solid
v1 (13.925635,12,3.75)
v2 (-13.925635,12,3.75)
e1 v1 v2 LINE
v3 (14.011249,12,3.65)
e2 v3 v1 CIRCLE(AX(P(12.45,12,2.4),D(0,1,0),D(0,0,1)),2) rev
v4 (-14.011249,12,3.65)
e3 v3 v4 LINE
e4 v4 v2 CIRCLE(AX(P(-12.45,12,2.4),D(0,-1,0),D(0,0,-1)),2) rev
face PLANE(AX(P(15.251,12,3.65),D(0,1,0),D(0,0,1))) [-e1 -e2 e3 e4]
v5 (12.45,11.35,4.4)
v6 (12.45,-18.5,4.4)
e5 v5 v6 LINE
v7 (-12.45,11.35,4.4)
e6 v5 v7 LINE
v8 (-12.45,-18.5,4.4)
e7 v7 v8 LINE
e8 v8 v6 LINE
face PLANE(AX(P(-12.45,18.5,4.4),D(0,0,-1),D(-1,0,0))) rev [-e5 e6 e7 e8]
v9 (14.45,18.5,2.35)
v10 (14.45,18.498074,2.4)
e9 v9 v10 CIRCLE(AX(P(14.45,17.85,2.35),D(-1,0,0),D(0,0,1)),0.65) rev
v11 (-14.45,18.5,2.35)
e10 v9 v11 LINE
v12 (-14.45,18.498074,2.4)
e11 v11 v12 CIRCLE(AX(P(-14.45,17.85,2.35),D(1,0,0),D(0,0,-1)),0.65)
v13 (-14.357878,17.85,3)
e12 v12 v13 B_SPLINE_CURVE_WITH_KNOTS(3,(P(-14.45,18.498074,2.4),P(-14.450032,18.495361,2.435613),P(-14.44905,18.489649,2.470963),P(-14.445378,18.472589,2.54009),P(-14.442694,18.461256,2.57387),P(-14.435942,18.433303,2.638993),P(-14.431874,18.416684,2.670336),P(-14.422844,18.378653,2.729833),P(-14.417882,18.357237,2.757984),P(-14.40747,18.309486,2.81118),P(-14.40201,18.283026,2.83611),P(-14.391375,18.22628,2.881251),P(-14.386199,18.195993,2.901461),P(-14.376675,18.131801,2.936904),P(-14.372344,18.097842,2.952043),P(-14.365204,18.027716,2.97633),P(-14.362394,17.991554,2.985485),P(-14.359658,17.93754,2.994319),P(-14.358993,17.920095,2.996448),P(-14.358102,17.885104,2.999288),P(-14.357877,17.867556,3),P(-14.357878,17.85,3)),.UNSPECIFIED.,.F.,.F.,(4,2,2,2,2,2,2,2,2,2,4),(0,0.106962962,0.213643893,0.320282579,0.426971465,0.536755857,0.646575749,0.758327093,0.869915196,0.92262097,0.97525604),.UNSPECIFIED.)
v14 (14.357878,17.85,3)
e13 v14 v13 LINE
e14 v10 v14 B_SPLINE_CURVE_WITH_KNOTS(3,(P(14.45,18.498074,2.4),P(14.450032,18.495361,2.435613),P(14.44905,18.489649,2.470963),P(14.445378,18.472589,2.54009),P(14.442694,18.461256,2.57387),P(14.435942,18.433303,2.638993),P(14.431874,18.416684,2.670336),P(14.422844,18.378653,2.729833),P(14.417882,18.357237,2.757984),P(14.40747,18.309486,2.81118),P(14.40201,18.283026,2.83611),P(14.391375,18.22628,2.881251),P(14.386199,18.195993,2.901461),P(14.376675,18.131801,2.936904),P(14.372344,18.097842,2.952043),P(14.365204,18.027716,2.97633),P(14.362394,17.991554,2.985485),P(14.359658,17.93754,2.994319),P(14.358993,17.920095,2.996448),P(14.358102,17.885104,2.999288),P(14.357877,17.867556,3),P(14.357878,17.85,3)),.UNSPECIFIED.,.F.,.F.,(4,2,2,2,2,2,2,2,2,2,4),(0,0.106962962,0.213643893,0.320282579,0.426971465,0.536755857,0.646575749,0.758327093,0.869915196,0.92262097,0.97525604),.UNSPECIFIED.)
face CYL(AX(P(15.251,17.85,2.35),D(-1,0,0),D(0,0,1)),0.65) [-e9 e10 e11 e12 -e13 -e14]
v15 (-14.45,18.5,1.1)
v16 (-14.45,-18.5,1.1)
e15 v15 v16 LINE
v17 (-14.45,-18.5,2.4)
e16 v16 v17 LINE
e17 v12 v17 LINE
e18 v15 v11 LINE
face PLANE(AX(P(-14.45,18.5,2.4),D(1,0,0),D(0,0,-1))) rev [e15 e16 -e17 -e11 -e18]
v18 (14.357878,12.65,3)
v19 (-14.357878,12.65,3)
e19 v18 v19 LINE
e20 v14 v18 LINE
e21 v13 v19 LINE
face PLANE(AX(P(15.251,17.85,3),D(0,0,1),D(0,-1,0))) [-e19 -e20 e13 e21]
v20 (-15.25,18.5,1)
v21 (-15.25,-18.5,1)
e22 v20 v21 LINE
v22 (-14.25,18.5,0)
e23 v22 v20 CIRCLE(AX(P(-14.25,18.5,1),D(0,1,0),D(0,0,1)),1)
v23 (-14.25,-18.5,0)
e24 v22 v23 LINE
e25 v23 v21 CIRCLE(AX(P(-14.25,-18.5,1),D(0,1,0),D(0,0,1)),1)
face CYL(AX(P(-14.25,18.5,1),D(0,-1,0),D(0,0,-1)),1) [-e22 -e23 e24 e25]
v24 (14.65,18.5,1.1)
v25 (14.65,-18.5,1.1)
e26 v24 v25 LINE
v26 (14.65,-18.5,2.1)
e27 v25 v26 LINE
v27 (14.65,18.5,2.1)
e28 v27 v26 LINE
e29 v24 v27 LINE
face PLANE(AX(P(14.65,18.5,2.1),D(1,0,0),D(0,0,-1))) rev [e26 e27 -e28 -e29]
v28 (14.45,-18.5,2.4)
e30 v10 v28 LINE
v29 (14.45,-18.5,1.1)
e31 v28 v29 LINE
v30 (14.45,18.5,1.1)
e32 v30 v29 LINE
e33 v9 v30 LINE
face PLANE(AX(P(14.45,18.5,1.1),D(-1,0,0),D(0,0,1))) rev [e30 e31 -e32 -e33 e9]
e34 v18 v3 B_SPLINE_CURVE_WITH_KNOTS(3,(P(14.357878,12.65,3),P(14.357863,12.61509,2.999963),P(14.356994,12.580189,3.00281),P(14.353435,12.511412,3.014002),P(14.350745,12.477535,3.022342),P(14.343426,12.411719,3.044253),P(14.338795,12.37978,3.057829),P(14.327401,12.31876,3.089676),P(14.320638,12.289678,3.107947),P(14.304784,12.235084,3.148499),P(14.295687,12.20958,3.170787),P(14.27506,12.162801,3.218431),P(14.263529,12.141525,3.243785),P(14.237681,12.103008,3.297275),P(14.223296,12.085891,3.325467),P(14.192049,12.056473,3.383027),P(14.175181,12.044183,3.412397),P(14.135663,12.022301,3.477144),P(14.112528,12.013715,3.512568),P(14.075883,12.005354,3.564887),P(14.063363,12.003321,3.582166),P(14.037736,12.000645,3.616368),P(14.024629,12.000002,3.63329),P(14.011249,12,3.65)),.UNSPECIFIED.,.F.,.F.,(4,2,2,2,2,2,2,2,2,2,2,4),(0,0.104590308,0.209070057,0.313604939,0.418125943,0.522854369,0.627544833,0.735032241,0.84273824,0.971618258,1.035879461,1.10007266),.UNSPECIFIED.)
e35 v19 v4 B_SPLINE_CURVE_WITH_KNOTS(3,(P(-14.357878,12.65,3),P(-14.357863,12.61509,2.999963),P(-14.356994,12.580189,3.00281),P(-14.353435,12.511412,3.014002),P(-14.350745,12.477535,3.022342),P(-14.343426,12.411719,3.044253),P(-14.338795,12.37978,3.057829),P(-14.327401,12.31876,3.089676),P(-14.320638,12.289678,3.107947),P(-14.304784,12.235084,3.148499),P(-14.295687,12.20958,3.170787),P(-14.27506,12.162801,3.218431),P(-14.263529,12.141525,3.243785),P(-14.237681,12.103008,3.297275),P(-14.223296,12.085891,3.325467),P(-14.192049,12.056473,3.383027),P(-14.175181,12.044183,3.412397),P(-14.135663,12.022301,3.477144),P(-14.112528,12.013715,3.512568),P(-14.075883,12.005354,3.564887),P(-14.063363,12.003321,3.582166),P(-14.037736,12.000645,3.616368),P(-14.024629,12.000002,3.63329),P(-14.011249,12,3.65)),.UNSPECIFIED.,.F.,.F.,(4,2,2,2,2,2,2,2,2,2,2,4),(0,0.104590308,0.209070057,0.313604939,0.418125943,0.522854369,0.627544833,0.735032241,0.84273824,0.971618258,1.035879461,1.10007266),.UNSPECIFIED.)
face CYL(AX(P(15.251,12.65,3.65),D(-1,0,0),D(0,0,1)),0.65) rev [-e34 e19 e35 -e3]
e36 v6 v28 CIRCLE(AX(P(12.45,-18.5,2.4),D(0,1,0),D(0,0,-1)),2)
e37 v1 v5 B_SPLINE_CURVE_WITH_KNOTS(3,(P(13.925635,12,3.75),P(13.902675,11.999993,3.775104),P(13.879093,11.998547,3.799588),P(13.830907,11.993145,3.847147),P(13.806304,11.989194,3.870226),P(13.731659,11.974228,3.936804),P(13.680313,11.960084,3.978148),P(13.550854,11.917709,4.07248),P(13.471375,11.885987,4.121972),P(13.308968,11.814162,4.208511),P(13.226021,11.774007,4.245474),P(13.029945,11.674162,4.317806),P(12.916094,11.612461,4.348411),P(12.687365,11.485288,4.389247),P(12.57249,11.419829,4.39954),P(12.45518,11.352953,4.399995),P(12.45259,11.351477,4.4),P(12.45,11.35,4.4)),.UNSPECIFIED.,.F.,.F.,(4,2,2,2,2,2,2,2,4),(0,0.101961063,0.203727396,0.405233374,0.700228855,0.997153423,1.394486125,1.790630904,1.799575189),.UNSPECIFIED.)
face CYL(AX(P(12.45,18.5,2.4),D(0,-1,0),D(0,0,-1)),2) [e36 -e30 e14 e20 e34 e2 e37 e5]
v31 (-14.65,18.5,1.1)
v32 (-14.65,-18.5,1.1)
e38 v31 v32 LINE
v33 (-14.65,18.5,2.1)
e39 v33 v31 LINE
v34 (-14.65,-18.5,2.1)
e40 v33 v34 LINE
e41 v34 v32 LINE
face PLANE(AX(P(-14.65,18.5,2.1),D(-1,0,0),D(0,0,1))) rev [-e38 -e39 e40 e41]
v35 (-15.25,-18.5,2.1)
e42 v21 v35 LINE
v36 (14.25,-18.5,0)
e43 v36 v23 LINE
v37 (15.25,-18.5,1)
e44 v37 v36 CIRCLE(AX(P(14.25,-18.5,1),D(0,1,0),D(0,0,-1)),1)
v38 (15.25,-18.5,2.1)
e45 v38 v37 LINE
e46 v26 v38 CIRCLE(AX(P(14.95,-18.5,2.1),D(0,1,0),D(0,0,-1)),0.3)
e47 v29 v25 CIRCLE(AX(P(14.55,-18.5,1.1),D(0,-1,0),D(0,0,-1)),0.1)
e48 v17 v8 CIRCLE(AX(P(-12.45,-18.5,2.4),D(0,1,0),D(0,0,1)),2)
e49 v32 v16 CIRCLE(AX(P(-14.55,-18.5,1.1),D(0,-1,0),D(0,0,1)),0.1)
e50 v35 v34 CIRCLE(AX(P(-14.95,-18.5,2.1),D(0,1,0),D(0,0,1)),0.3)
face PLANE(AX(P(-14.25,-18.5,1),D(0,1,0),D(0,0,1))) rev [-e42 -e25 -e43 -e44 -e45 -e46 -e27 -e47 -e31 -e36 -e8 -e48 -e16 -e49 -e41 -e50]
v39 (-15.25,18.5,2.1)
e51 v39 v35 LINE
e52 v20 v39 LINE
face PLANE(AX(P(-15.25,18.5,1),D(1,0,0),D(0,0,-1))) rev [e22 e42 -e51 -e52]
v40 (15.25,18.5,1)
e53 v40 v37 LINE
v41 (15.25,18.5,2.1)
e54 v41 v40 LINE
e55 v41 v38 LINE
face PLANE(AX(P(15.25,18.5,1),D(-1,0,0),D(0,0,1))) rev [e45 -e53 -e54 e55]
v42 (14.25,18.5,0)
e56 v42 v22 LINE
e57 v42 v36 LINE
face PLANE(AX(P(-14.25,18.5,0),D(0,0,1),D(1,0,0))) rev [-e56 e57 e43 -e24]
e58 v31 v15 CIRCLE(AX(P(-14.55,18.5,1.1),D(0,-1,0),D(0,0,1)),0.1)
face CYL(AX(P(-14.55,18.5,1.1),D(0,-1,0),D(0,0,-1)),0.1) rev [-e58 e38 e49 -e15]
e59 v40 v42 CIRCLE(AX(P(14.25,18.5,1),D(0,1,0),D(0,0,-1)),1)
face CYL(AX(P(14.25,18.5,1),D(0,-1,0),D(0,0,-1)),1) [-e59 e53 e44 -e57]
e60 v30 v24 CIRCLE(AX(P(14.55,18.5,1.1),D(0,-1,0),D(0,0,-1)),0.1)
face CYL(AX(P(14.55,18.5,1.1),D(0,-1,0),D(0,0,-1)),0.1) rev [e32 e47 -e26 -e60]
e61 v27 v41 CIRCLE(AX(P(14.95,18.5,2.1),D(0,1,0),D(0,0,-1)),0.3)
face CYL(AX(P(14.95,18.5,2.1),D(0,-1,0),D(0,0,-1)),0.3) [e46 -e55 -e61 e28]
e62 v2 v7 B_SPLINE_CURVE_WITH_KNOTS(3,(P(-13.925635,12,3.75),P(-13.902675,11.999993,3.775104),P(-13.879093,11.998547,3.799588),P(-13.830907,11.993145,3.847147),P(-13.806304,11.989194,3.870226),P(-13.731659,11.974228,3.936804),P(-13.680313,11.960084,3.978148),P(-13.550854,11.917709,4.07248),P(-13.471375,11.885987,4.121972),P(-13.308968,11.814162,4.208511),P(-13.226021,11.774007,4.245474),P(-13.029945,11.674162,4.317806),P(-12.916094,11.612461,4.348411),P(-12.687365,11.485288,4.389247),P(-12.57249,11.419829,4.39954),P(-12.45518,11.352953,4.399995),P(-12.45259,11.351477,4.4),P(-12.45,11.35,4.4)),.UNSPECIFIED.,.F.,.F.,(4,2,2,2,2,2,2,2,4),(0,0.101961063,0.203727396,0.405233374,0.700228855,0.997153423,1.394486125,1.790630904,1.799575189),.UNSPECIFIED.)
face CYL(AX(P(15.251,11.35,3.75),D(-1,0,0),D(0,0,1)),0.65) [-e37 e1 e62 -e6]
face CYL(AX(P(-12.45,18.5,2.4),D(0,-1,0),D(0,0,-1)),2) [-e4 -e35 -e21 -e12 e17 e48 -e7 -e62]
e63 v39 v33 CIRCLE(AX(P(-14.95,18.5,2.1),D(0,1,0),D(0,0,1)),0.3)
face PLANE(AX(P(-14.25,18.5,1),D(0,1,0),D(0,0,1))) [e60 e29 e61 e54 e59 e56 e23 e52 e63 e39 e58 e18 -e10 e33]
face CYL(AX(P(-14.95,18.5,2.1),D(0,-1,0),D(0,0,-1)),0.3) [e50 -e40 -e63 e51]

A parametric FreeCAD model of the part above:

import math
import FreeCAD as App
import Part
import Sketcher

doc = App.newDocument("Part")
params = doc.addObject("Spreadsheet::Sheet", "Params")
for row, (alias, value) in enumerate([
    ("sketch1_radius", "1 mm"),
    ("sketch1_radius2", "2 mm"),
    ("sketch1_radius3", "0.3 mm"),
    ("sketch1_radius4", "0.1 mm"),
    ("sketch1_height", "1 mm"),
    ("pad1_length", "37 mm"),
    ("sketch2_radius", "0.65 mm"),
    ("sketch2_width", "5.2 mm"),
    ("sketch2_height", "0.1 mm"),
    ("sketch3_radius", "0.65 mm"),
    ("sketch3_width", "5.2 mm"),
    ("sketch3_height", "0.1 mm"),
], start=1):
    params.set(f"A{row}", alias)
    params.set(f"B{row}", "=" + value)
    params.setAlias(f"B{row}", alias)

body = doc.addObject("PartDesign::Body", "Body")

# Sketch on XZ plane
sketch1 = body.newObject("Sketcher::SketchObject", "Sketch")
sketch1.AttachmentSupport = (doc.getObject("XZ_Plane"), [""])
sketch1.MapMode = "FlatFace"
sketch1.addGeometry([
    Part.LineSegment(App.Vector(14.25, 0, 0), App.Vector(-14.25, 0, 0)),  # 0
    Part.ArcOfCircle(Part.Circle(App.Vector(-14.25, 1, 0), App.Vector(0, 0, 1), 1), math.radians(-180), math.radians(-90)),  # 1
    Part.LineSegment(App.Vector(-15.25, 1, 0), App.Vector(-15.25, 2.1, 0)),  # 2
    Part.ArcOfCircle(Part.Circle(App.Vector(-14.95, 2.1, 0), App.Vector(0, 0, 1), 0.3), math.radians(0), math.radians(180)),  # 3
    Part.LineSegment(App.Vector(-14.65, 2.1, 0), App.Vector(-14.65, 1.1, 0)),  # 4
    Part.ArcOfCircle(Part.Circle(App.Vector(-14.55, 1.1, 0), App.Vector(0, 0, 1), 0.1), math.radians(180), math.radians(360)),  # 5
    Part.LineSegment(App.Vector(-14.45, 1.1, 0), App.Vector(-14.45, 2.4, 0)),  # 6
    Part.ArcOfCircle(Part.Circle(App.Vector(-12.45, 2.4, 0), App.Vector(0, 0, 1), 2), math.radians(90), math.radians(180)),  # 7
    Part.LineSegment(App.Vector(-12.45, 4.4, 0), App.Vector(12.45, 4.4, 0)),  # 8
    Part.ArcOfCircle(Part.Circle(App.Vector(12.45, 2.4, 0), App.Vector(0, 0, 1), 2), math.radians(0), math.radians(90)),  # 9
    Part.LineSegment(App.Vector(14.45, 2.4, 0), App.Vector(14.45, 1.1, 0)),  # 10
    Part.ArcOfCircle(Part.Circle(App.Vector(14.55, 1.1, 0), App.Vector(0, 0, 1), 0.1), math.radians(180), math.radians(360)),  # 11
    Part.LineSegment(App.Vector(14.65, 1.1, 0), App.Vector(14.65, 2.1, 0)),  # 12
    Part.ArcOfCircle(Part.Circle(App.Vector(14.95, 2.1, 0), App.Vector(0, 0, 1), 0.3), math.radians(0), math.radians(180)),  # 13
    Part.LineSegment(App.Vector(15.25, 2.1, 0), App.Vector(15.25, 1, 0)),  # 14
    Part.ArcOfCircle(Part.Circle(App.Vector(14.25, 1, 0), App.Vector(0, 0, 1), 1), math.radians(-90), math.radians(0)),  # 15
], False)
sketch1.addConstraint([
    Sketcher.Constraint("Tangent", 0, 2, 1, 2),
    Sketcher.Constraint("Tangent", 1, 1, 2, 1),
    Sketcher.Constraint("Tangent", 2, 2, 3, 2),
    Sketcher.Constraint("Tangent", 3, 1, 4, 1),
    Sketcher.Constraint("Tangent", 4, 2, 5, 1),
    Sketcher.Constraint("Tangent", 5, 2, 6, 1),
    Sketcher.Constraint("Tangent", 6, 2, 7, 2),
    Sketcher.Constraint("Tangent", 7, 1, 8, 1),
    Sketcher.Constraint("Tangent", 8, 2, 9, 2),
    Sketcher.Constraint("Tangent", 9, 1, 10, 1),
    Sketcher.Constraint("Tangent", 10, 2, 11, 1),
    Sketcher.Constraint("Tangent", 11, 2, 12, 1),
    Sketcher.Constraint("Tangent", 12, 2, 13, 2),
    Sketcher.Constraint("Tangent", 13, 1, 14, 1),
    Sketcher.Constraint("Tangent", 14, 2, 15, 2),
    Sketcher.Constraint("Tangent", 15, 1, 0, 1),
    Sketcher.Constraint("Horizontal", 0),
    Sketcher.Constraint("Vertical", 2),
    Sketcher.Constraint("Vertical", 4),
    Sketcher.Constraint("Vertical", 6),
    Sketcher.Constraint("Horizontal", 8),
    Sketcher.Constraint("Vertical", 10),
    Sketcher.Constraint("Vertical", 12),
    Sketcher.Constraint("Vertical", 14),
    Sketcher.Constraint("Equal", 7, 9),
    Sketcher.Constraint("Equal", 5, 11),
    Sketcher.Constraint("Equal", 3, 13),
    Sketcher.Constraint("Equal", 1, 15),
    Sketcher.Constraint("Symmetric", 0, 2, 15, 1, -1, 1),
    Sketcher.Constraint("Horizontal", 5, 3, 11, 3),
    Sketcher.Constraint("Horizontal", 3, 3, 13, 3),
    Sketcher.Constraint("Radius", 1, 1.0),
    Sketcher.Constraint("Radius", 7, 2.0),
    Sketcher.Constraint("Radius", 3, 0.3),
    Sketcher.Constraint("Radius", 5, 0.1),
    Sketcher.Constraint("DistanceY", 4, 2, 4, 1, 1.0),
    Sketcher.Constraint("DistanceX", 0, 2, 0, 1, 28.5),
    Sketcher.Constraint("DistanceY", 2, 1, 2, 2, 1.1),
    Sketcher.Constraint("DistanceY", 6, 1, 6, 2, 1.3),
])
sketch1.setExpression("Constraints[31]", "Params.sketch1_radius")
sketch1.setExpression("Constraints[32]", "Params.sketch1_radius2")
sketch1.setExpression("Constraints[33]", "Params.sketch1_radius3")
sketch1.setExpression("Constraints[34]", "Params.sketch1_radius4")
sketch1.setExpression("Constraints[35]", "Params.sketch1_height")
pad1 = body.newObject("PartDesign::Pad", "Pad")
pad1.Profile = sketch1
pad1.setExpression("Length", "Params.pad1_length")
pad1.Midplane = True

# Sketch on YZ plane
sketch2 = body.newObject("Sketcher::SketchObject", "Sketch001")
sketch2.AttachmentSupport = (doc.getObject("YZ_Plane"), [""])
sketch2.MapMode = "FlatFace"
sketch2.addGeometry([
    Part.LineSegment(App.Vector(12.65, 3, 0), App.Vector(17.85, 3, 0)),  # 0
    Part.ArcOfCircle(Part.Circle(App.Vector(17.85, 2.35, 0), App.Vector(0, 0, 1), 0.65), math.radians(0), math.radians(90)),  # 1
    Part.LineSegment(App.Vector(18.5, 2.35, 0), App.Vector(18.5, 4.4, 0)),  # 2
    Part.LineSegment(App.Vector(18.5, 4.4, 0), App.Vector(11.35, 4.4, 0)),  # 3
    Part.ArcOfCircle(Part.Circle(App.Vector(11.35, 3.75, 0), App.Vector(0, 0, 1), 0.65), math.radians(0), math.radians(90)),  # 4
    Part.LineSegment(App.Vector(12, 3.75, 0), App.Vector(12, 3.65, 0)),  # 5
    Part.ArcOfCircle(Part.Circle(App.Vector(12.65, 3.65, 0), App.Vector(0, 0, 1), 0.65), math.radians(180), math.radians(270)),  # 6
], False)
sketch2.addConstraint([
    Sketcher.Constraint("Tangent", 0, 2, 1, 2),
    Sketcher.Constraint("Tangent", 1, 1, 2, 1),
    Sketcher.Constraint("Coincident", 2, 2, 3, 1),
    Sketcher.Constraint("Tangent", 3, 2, 4, 2),
    Sketcher.Constraint("Tangent", 4, 1, 5, 1),
    Sketcher.Constraint("Tangent", 5, 2, 6, 1),
    Sketcher.Constraint("Tangent", 6, 2, 0, 1),
    Sketcher.Constraint("Horizontal", 0),
    Sketcher.Constraint("Vertical", 2),
    Sketcher.Constraint("Horizontal", 3),
    Sketcher.Constraint("Vertical", 5),
    Sketcher.Constraint("Equal", 1, 4),
    Sketcher.Constraint("Equal", 4, 6),
    Sketcher.Constraint("Radius", 1, 0.65),
    Sketcher.Constraint("DistanceX", 0, 1, 0, 2, 5.2),
    Sketcher.Constraint("DistanceY", 5, 2, 5, 1, 0.1),
    Sketcher.Constraint("DistanceY", -1, 1, 0, 2, 3.0),
    Sketcher.Constraint("DistanceX", -1, 1, 4, 1, 12.0),
])
sketch2.setExpression("Constraints[13]", "Params.sketch2_radius")
sketch2.setExpression("Constraints[14]", "Params.sketch2_width")
sketch2.setExpression("Constraints[15]", "Params.sketch2_height")
pocket1 = body.newObject("PartDesign::Pocket", "Pocket")
pocket1.Profile = sketch2
pocket1.Type = "UpToFirst"

# Sketch on YZ plane
sketch3 = body.newObject("Sketcher::SketchObject", "Sketch002")
sketch3.AttachmentSupport = (doc.getObject("YZ_Plane"), [""])
sketch3.MapMode = "FlatFace"
sketch3.addGeometry([
    Part.LineSegment(App.Vector(12.65, 3, 0), App.Vector(17.85, 3, 0)),  # 0
    Part.ArcOfCircle(Part.Circle(App.Vector(17.85, 2.35, 0), App.Vector(0, 0, 1), 0.65), math.radians(0), math.radians(90)),  # 1
    Part.LineSegment(App.Vector(18.5, 2.35, 0), App.Vector(18.5, 4.4, 0)),  # 2
    Part.LineSegment(App.Vector(18.5, 4.4, 0), App.Vector(11.35, 4.4, 0)),  # 3
    Part.ArcOfCircle(Part.Circle(App.Vector(11.35, 3.75, 0), App.Vector(0, 0, 1), 0.65), math.radians(0), math.radians(90)),  # 4
    Part.LineSegment(App.Vector(12, 3.75, 0), App.Vector(12, 3.65, 0)),  # 5
    Part.ArcOfCircle(Part.Circle(App.Vector(12.65, 3.65, 0), App.Vector(0, 0, 1), 0.65), math.radians(180), math.radians(270)),  # 6
], False)
sketch3.addConstraint([
    Sketcher.Constraint("Tangent", 0, 2, 1, 2),
    Sketcher.Constraint("Tangent", 1, 1, 2, 1),
    Sketcher.Constraint("Coincident", 2, 2, 3, 1),
    Sketcher.Constraint("Tangent", 3, 2, 4, 2),
    Sketcher.Constraint("Tangent", 4, 1, 5, 1),
    Sketcher.Constraint("Tangent", 5, 2, 6, 1),
    Sketcher.Constraint("Tangent", 6, 2, 0, 1),
    Sketcher.Constraint("Horizontal", 0),
    Sketcher.Constraint("Vertical", 2),
    Sketcher.Constraint("Horizontal", 3),
    Sketcher.Constraint("Vertical", 5),
    Sketcher.Constraint("Equal", 1, 4),
    Sketcher.Constraint("Equal", 4, 6),
    Sketcher.Constraint("Radius", 1, 0.65),
    Sketcher.Constraint("DistanceX", 0, 1, 0, 2, 5.2),
    Sketcher.Constraint("DistanceY", 5, 2, 5, 1, 0.1),
    Sketcher.Constraint("DistanceY", -1, 1, 0, 2, 3.0),
    Sketcher.Constraint("DistanceX", -1, 1, 4, 1, 12.0),
])
sketch3.setExpression("Constraints[13]", "Params.sketch3_radius")
sketch3.setExpression("Constraints[14]", "Params.sketch3_width")
sketch3.setExpression("Constraints[15]", "Params.sketch3_height")
pocket2 = body.newObject("PartDesign::Pocket", "Pocket001")
pocket2.Profile = sketch3
pocket2.Type = "UpToFirst"
pocket2.Reversed = True

doc.recompute()
